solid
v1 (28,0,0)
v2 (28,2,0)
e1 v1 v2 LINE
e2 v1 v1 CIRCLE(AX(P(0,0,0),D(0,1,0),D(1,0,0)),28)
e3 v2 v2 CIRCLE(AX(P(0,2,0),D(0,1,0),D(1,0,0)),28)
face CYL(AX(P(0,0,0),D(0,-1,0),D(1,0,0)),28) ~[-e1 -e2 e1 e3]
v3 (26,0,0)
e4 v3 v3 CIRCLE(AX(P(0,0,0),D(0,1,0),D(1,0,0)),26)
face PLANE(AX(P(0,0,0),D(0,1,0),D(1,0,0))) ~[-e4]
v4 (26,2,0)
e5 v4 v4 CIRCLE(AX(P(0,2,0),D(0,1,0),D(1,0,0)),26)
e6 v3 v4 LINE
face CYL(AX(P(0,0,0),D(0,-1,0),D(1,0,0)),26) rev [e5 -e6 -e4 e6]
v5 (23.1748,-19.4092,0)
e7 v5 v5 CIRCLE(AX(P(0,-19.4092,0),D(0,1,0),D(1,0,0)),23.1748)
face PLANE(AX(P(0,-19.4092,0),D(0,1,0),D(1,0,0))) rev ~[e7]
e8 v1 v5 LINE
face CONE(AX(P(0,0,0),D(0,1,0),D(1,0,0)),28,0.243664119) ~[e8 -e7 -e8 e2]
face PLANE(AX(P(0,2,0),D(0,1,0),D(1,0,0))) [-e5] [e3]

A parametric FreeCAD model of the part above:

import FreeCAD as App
import Part
import Sketcher

V = App.Vector
Q = App.Units.Quantity


def add_polygon(sketch, points):
    """Adds a closed chain of lines whose ends are joined by coincident constraints."""
    first, n = sketch.GeometryCount, len(points)
    for a, b in zip(points, points[1:] + points[:1]):
        sketch.addGeometry(Part.LineSegment(App.Vector(*a, 0), App.Vector(*b, 0)), False)
    for i in range(n):
        sketch.addConstraint(Sketcher.Constraint("Coincident", first + i, 2, first + (i + 1) % n, 1))

doc = App.newDocument("Part")
body = doc.addObject("PartDesign::Body", "Body")

# Sketch on XY plane
sketch1 = doc.addObject("Sketcher::SketchObject", "Sketch")
body.addObject(sketch1)
sketch1.AttachmentSupport = (doc.XY_Plane, [""])
sketch1.MapMode = "FlatFace"
add_polygon(sketch1, [(28, 0), (0, 0), (0, -19.4092), (23.1748, -19.4092)])  # lines 0-3
sketch1.addConstraint(Sketcher.Constraint("Horizontal", 0))
sketch1.addConstraint(Sketcher.Constraint("Vertical", 1))
sketch1.addConstraint(Sketcher.Constraint("Horizontal", 2))
sketch1.addConstraint(Sketcher.Constraint("Coincident", 0, 2, -1, 1))
sketch1.addConstraint(Sketcher.Constraint("DistanceX", 0, 2, 0, 1, Q("28 mm")))
sketch1.addConstraint(Sketcher.Constraint("Distance", 3, Q("20 mm")))
sketch1.addConstraint(Sketcher.Constraint("Angle", 3, Q("76.039 deg")))
revolution = doc.addObject("PartDesign::Revolution", "Revolution")
body.addObject(revolution)
revolution.Profile = sketch1
revolution.ReferenceAxis = (sketch1, ["V_Axis"])
revolution.Angle = 360

# Sketch on XZ plane
sketch2 = doc.addObject("Sketcher::SketchObject", "Sketch001")
body.addObject(sketch2)
sketch2.AttachmentSupport = (doc.XZ_Plane, [""])
sketch2.MapMode = "FlatFace"
sketch2.addGeometry(Part.Circle(V(0, 0, 0), V(0, 0, 1), 28), False)
sketch2.addGeometry(Part.Circle(V(0, 0, 0), V(0, 0, 1), 26), False)
sketch2.addConstraint(Sketcher.Constraint("Coincident", 0, 3, -1, 1))
sketch2.addConstraint(Sketcher.Constraint("Coincident", 1, 3, -1, 1))
sketch2.addConstraint(Sketcher.Constraint("Diameter", 0, Q("56 mm")))
sketch2.addConstraint(Sketcher.Constraint("Diameter", 1, Q("52 mm")))
pad1 = doc.addObject("PartDesign::Pad", "Pad")
body.addObject(pad1)
pad1.Profile = sketch2
pad1.Length = 2
pad1.Reversed = True

doc.recompute()
